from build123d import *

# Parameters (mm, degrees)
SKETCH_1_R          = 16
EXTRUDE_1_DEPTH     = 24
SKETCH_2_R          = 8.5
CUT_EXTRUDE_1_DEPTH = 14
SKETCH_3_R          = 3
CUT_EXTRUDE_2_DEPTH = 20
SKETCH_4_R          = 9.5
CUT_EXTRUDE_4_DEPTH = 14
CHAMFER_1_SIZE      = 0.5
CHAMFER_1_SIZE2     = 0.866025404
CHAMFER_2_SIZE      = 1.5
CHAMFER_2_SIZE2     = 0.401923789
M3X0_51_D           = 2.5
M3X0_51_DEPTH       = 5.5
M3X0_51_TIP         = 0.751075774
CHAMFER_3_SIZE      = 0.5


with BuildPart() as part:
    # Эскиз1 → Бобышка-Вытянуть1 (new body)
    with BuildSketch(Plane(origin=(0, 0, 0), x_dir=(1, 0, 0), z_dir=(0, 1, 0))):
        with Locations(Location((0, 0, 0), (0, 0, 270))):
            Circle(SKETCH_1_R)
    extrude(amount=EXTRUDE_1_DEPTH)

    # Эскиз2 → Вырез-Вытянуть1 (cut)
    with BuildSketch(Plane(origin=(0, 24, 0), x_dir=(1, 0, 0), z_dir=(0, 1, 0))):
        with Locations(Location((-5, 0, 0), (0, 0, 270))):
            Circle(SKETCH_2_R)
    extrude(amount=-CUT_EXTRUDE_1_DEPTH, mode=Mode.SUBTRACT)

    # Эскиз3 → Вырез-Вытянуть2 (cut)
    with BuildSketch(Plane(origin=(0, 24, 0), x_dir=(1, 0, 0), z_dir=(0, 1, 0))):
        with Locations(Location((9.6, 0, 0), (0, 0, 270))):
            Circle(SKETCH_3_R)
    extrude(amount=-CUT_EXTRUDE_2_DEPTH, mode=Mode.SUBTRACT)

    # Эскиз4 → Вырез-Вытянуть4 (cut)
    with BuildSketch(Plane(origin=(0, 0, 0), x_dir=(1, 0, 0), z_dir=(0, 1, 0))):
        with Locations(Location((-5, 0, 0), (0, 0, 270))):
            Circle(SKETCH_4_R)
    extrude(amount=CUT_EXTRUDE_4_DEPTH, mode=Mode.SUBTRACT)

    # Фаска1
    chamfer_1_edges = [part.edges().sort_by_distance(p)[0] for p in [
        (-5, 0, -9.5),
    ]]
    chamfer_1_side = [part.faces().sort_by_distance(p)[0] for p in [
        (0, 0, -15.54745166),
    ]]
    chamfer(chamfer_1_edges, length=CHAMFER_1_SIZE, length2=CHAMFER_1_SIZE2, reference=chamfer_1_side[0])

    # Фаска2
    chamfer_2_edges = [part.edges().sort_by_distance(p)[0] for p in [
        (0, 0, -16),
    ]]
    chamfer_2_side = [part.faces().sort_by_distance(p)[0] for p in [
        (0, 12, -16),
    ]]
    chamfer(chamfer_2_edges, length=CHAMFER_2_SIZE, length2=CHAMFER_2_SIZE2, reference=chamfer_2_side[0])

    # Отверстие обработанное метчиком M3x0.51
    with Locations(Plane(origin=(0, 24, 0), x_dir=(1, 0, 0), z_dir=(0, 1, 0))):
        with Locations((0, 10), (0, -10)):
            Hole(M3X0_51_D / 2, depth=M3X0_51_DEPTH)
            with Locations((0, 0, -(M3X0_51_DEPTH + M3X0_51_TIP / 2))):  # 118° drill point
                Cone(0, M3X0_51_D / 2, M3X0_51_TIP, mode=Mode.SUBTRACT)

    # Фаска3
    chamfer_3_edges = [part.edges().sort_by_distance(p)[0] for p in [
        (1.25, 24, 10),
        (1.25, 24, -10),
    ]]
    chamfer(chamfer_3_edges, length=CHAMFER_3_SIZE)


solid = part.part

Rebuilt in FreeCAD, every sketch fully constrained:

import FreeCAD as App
import Part
import Sketcher

V = App.Vector
Q = App.Units.Quantity


def edges_at(feature, points):
    """Names of the edges that pass closest to the given points."""
    edges = feature.Shape.Edges
    near = lambda p: min(range(len(edges)), key=lambda i: edges[i].distToShape(Part.Vertex(*p))[0])
    return sorted({f"Edge{near(p) + 1}" for p in points})

doc = App.newDocument("Part")
body = doc.addObject("PartDesign::Body", "Body")

sketch1 = body.newObject("Sketcher::SketchObject", "Sketch")
sketch1.AttachmentSupport = (doc.getObject("XZ_Plane"), [""])
sketch1.MapMode = "FlatFace"
sketch1.addGeometry(Part.Circle(V(0, 0, 0), V(0, 0, 1), 16), False)
sketch1.addConstraint([
    Sketcher.Constraint("Coincident", 0, 3, -1, 1),
    Sketcher.Constraint("Diameter", 0, Q("32 mm")),
])
pad1 = body.newObject("PartDesign::Pad", "Pad")
pad1.Profile = sketch1
pad1.Length = 24
pad1.Reversed = True

sketch2 = body.newObject("Sketcher::SketchObject", "Sketch001")
sketch2.AttachmentSupport = (doc.getObject("XZ_Plane"), [""])
sketch2.MapMode = "FlatFace"
sketch2.AttachmentOffset = App.Placement(V(0, 0, -24), App.Rotation())
sketch2.addGeometry(Part.Circle(V(-5, 0, 0), V(0, 0, 1), 8), False)
sketch2.addConstraint([
    Sketcher.Constraint("PointOnObject", 0, 3, -1),
    Sketcher.Constraint("Diameter", 0, Q("17 mm")),
    Sketcher.Constraint("DistanceX", 0, 3, -1, 1, Q("5 mm")),
])
pocket1 = body.newObject("PartDesign::Pocket", "Pocket")
pocket1.Profile = sketch2
pocket1.Length = 14
pocket1.Reversed = True

sketch3 = body.newObject("Sketcher::SketchObject", "Sketch002")
sketch3.AttachmentSupport = (doc.getObject("XZ_Plane"), [""])
sketch3.MapMode = "FlatFace"
sketch3.AttachmentOffset = App.Placement(V(0, 0, -24), App.Rotation())
sketch3.addGeometry(Part.Circle(V(9.6, 0, 0), V(0, 0, 1), 3), False)
sketch3.addConstraint([
    Sketcher.Constraint("PointOnObject", 0, 3, -1),
    Sketcher.Constraint("Diameter", 0, Q("6 mm")),
    Sketcher.Constraint("DistanceX", -1, 1, 0, 3, Q("9.6 mm")),
])
pocket2 = body.newObject("PartDesign::Pocket", "Pocket001")
pocket2.Profile = sketch3
pocket2.Length = 20
pocket2.Reversed = True

sketch4 = body.newObject("Sketcher::SketchObject", "Sketch003")
sketch4.AttachmentSupport = (doc.getObject("XZ_Plane"), [""])
sketch4.MapMode = "FlatFace"
sketch4.addGeometry(Part.Circle(V(-5, 0, 0), V(0, 0, 1), 10), False)
sketch4.addConstraint([
    Sketcher.Constraint("PointOnObject", 0, 3, -1),
    Sketcher.Constraint("Diameter", 0, Q("19 mm")),
    Sketcher.Constraint("DistanceX", 0, 3, -1, 1, Q("5 mm")),
])
pocket3 = body.newObject("PartDesign::Pocket", "Pocket002")
pocket3.Profile = sketch4
pocket3.Length = 14
doc.recompute()

chamfer = body.newObject("PartDesign::Chamfer", "Chamfer")
chamfer.Base = (pocket3, edges_at(pocket3, [(-5, 0, -9.5)]))
chamfer.ChamferType = "Two distances"
chamfer.Size = 0.5
chamfer.Size2 = 0.866025
doc.recompute()

chamfer2 = body.newObject("PartDesign::Chamfer", "Chamfer001")
chamfer2.Base = (chamfer, edges_at(chamfer, [(0, 0, -16)]))
chamfer2.ChamferType = "Two distances"
chamfer2.Size = 1.5
chamfer2.Size2 = 0.401924
chamfer2.FlipDirection = True

sketch5 = body.newObject("Sketcher::SketchObject", "Sketch004")
sketch5.AttachmentSupport = (doc.getObject("XZ_Plane"), [""])
sketch5.MapMode = "FlatFace"
sketch5.AttachmentOffset = App.Placement(V(0, 0, -24), App.Rotation())
sketch5.addGeometry([
    Part.Circle(V(0, -10, 0), V(0, 0, 1), 1.2),
    Part.Circle(V(0, 10, 0), V(0, 0, 1), 1.2),
], False)
sketch5.addConstraint([
    Sketcher.Constraint("Equal", 0, 1),
    Sketcher.Constraint("Symmetric", 0, 3, 1, 3, -1, 1),
    Sketcher.Constraint("PointOnObject", 0, 3, -2),
    Sketcher.Constraint("Diameter", 0, Q("2.5 mm")),
    Sketcher.Constraint("DistanceY", 0, 3, -1, 1, Q("10 mm")),
])
doc.recompute()
hole = body.newObject("PartDesign::Hole", "Hole")
hole.Profile = sketch5
hole.ThreadType = "None"
hole.Diameter = 2.5
hole.DepthType = "Dimension"
hole.Depth = 5.5
hole.DrillPoint = "Angled"
hole.DrillPointAngle = 118
hole.Reversed = True
doc.recompute()

chamfer3 = body.newObject("PartDesign::Chamfer", "Chamfer002")
chamfer3.Base = (hole, edges_at(hole, [(1.25, 24, 10), (1.25, 24, -10)]))
chamfer3.Size = 0.5

doc.recompute()
